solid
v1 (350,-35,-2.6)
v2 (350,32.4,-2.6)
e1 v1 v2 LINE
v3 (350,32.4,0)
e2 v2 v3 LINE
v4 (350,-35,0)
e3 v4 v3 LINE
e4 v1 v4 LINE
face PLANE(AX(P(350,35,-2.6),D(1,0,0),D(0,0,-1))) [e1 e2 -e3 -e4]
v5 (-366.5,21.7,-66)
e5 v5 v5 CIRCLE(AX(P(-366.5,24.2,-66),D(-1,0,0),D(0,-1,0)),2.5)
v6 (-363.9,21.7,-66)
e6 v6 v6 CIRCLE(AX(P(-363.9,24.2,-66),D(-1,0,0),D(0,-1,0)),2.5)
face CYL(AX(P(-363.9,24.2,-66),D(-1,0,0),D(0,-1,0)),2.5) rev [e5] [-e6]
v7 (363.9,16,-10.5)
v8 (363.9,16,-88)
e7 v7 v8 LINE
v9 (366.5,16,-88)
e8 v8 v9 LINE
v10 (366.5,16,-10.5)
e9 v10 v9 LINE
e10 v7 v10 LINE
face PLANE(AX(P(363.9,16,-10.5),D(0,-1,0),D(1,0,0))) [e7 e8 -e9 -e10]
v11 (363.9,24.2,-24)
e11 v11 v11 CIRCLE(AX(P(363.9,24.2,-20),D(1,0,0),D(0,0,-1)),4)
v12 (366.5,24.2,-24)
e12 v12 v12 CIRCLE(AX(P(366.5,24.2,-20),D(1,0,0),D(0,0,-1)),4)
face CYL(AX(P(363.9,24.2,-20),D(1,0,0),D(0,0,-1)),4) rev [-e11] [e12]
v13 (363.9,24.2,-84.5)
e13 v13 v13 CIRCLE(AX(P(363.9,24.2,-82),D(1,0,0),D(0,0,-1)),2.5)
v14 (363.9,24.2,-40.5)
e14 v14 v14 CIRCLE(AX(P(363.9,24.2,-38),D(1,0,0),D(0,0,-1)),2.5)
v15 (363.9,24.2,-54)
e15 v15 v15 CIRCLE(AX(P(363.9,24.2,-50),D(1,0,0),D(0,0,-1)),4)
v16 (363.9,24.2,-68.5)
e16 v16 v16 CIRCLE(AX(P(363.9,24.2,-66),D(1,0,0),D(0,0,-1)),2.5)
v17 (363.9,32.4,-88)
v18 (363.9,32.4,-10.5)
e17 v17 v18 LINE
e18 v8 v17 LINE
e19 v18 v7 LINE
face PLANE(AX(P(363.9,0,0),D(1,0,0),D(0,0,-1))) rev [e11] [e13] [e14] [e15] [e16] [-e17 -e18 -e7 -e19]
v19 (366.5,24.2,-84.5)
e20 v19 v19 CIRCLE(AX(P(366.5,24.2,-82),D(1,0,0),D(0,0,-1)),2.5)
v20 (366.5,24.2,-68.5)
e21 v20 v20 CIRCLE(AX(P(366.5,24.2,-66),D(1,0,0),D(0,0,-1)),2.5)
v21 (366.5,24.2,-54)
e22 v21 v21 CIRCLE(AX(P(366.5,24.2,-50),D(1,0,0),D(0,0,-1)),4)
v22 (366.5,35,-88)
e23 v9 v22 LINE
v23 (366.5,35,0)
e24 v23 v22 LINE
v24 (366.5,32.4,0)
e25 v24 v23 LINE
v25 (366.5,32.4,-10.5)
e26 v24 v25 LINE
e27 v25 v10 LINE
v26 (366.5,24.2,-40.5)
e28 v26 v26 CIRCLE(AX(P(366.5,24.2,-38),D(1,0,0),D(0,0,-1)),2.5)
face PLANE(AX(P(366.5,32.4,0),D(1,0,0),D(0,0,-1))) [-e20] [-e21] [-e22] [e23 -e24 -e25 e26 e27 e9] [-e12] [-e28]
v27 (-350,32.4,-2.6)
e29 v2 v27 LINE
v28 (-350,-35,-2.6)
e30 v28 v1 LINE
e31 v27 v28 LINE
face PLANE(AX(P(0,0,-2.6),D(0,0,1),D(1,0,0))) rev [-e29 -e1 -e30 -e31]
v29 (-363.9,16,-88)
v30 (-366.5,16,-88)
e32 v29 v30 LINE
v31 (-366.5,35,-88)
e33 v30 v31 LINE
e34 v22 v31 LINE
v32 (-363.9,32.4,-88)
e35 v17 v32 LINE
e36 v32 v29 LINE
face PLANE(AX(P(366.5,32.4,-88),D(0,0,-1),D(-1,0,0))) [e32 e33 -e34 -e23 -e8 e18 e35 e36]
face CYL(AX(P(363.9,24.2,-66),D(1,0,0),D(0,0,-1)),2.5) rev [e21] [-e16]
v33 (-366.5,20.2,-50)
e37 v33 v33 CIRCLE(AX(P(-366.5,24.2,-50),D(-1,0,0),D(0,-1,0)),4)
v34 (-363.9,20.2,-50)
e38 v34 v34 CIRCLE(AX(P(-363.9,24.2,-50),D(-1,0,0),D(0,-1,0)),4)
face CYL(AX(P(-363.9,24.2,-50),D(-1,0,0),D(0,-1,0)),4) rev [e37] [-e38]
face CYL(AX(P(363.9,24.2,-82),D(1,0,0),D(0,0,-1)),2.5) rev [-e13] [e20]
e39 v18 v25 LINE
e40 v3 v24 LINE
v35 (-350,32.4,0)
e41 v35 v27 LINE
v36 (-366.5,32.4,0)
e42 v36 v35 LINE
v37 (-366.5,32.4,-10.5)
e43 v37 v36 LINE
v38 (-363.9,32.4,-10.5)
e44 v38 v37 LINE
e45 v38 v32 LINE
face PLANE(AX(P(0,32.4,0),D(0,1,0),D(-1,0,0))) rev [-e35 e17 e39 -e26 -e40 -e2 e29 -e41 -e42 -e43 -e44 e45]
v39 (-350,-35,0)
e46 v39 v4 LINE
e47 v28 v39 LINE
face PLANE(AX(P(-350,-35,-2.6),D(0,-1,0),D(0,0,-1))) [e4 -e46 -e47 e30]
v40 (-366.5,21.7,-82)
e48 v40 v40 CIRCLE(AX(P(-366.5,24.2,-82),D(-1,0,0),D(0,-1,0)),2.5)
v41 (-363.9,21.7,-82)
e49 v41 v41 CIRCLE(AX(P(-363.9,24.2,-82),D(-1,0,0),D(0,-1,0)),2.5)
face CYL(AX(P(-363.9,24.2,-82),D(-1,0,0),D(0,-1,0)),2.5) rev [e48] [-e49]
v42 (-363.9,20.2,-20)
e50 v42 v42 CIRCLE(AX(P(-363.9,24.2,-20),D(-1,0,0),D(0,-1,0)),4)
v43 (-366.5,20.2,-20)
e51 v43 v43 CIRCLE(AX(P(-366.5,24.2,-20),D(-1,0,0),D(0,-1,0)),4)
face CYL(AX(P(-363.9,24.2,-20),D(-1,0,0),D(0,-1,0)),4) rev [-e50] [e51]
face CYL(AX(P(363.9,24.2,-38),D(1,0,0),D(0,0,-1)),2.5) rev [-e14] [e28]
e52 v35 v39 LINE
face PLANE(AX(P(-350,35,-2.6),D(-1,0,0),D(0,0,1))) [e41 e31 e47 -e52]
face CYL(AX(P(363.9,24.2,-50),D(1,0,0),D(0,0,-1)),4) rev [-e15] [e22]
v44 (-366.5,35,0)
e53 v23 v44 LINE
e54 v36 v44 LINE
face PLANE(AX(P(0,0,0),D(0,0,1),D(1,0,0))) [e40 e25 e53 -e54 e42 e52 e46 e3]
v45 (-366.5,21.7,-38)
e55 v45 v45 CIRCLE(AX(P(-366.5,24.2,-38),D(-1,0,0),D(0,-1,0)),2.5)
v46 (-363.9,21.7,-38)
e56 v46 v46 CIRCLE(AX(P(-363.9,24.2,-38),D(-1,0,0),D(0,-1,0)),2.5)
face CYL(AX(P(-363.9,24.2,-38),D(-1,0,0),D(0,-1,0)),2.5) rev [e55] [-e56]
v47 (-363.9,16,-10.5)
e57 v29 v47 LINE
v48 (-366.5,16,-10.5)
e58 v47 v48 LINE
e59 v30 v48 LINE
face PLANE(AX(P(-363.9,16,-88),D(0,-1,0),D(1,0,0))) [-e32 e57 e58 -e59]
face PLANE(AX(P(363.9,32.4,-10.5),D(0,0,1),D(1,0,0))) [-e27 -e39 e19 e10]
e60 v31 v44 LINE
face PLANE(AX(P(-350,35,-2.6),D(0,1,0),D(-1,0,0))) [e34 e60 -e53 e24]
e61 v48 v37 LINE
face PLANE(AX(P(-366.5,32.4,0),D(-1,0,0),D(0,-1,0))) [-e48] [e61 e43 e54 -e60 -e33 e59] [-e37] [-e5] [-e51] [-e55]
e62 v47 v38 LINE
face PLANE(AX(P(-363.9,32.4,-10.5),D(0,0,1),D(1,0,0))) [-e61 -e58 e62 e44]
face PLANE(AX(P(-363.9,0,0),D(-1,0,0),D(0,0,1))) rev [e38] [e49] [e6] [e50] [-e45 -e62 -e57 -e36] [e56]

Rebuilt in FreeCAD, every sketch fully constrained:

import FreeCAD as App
import Part
import Sketcher
Q = App.Units.Quantity

doc = App.newDocument("Part")
body = doc.addObject("PartDesign::Body", "Body")

# Sketch on XY plane
sketch1 = doc.addObject("Sketcher::SketchObject", "Sketch")
body.addObject(sketch1)
sketch1.AttachmentSupport = (doc.XY_Plane, [""])
sketch1.MapMode = "FlatFace"
sketch1.addGeometry([
    Part.LineSegment(App.Vector(-350, 35, 0), App.Vector(-350, -35, 0)),
    Part.LineSegment(App.Vector(-350, -35, 0), App.Vector(350, -35, 0)),
    Part.LineSegment(App.Vector(350, -35, 0), App.Vector(350, 35, 0)),
    Part.LineSegment(App.Vector(350, 35, 0), App.Vector(-350, 35, 0)),
], False)
sketch1.addConstraint([
    Sketcher.Constraint("Coincident", 0, 2, 1, 1),
    Sketcher.Constraint("Coincident", 1, 2, 2, 1),
    Sketcher.Constraint("Coincident", 2, 2, 3, 1),
    Sketcher.Constraint("Coincident", 3, 2, 0, 1),
    Sketcher.Constraint("Vertical", 0),
    Sketcher.Constraint("Horizontal", 1),
    Sketcher.Constraint("Vertical", 2),
    Sketcher.Constraint("Horizontal", 3),
    Sketcher.Constraint("Symmetric", 0, 2, 2, 2, -1, 1),
    Sketcher.Constraint("DistanceX", 1, 1, 1, 2, Q("700 mm")),
    Sketcher.Constraint("DistanceY", 0, 2, 0, 1, Q("70 mm")),
])
pad1 = doc.addObject("PartDesign::Pad", "Pad")
body.addObject(pad1)
pad1.Profile = sketch1
pad1.Length = 2.6
pad1.Reversed = True

# Sketch on XZ plane
sketch2 = doc.addObject("Sketcher::SketchObject", "Sketch001")
body.addObject(sketch2)
sketch2.AttachmentSupport = (doc.XZ_Plane, [""])
sketch2.MapMode = "FlatFace"
sketch2.AttachmentOffset = App.Placement(App.Vector(0, 0, -35), App.Rotation())
sketch2.addGeometry([
    Part.LineSegment(App.Vector(-366, -88, 0), App.Vector(-366, 0, 0)),
    Part.LineSegment(App.Vector(-366, 0, 0), App.Vector(366, 0, 0)),
    Part.LineSegment(App.Vector(366, 0, 0), App.Vector(366, -88, 0)),
    Part.LineSegment(App.Vector(366, -88, 0), App.Vector(-366, -88, 0)),
], False)
sketch2.addConstraint([
    Sketcher.Constraint("Coincident", 0, 2, 1, 1),
    Sketcher.Constraint("Coincident", 1, 2, 2, 1),
    Sketcher.Constraint("Coincident", 2, 2, 3, 1),
    Sketcher.Constraint("Coincident", 3, 2, 0, 1),
    Sketcher.Constraint("Vertical", 0),
    Sketcher.Constraint("Horizontal", 1),
    Sketcher.Constraint("Vertical", 2),
    Sketcher.Constraint("Horizontal", 3),
    Sketcher.Constraint("Symmetric", 0, 2, 1, 2, -1, 1),
    Sketcher.Constraint("DistanceX", 1, 1, 1, 2, Q("733 mm")),
    Sketcher.Constraint("DistanceY", 0, 1, 0, 2, Q("88 mm")),
])
pad2 = doc.addObject("PartDesign::Pad", "Pad001")
body.addObject(pad2)
pad2.Profile = sketch2
pad2.Length = 2.6

# Sketch on YZ plane
sketch3 = doc.addObject("Sketcher::SketchObject", "Sketch002")
body.addObject(sketch3)
sketch3.AttachmentSupport = (doc.YZ_Plane, [""])
sketch3.MapMode = "FlatFace"
sketch3.AttachmentOffset = App.Placement(App.Vector(0, 0, -366.5), App.Rotation())
sketch3.addGeometry([
    Part.LineSegment(App.Vector(32.4, -88, 0), App.Vector(16, -88, 0)),  # 0
    Part.LineSegment(App.Vector(16, -88, 0), App.Vector(16, -10.5, 0)),  # 1
    Part.LineSegment(App.Vector(16, -10.5, 0), App.Vector(32.4, -10.5, 0)),  # 2
    Part.LineSegment(App.Vector(32.4, -10.5, 0), App.Vector(32.4, -88, 0)),  # 3
    Part.Circle(App.Vector(24.2, -82, 0), App.Vector(0, 0, 1), 2.5),  # 4
    Part.Circle(App.Vector(24.2, -66, 0), App.Vector(0, 0, 1), 2.5),  # 5
    Part.Circle(App.Vector(24.2, -50, 0), App.Vector(0, 0, 1), 4),  # 6
    Part.Circle(App.Vector(24.2, -38, 0), App.Vector(0, 0, 1), 2.5),  # 7
    Part.Circle(App.Vector(24.2, -20, 0), App.Vector(0, 0, 1), 4),  # 8
], False)
sketch3.addConstraint([
    Sketcher.Constraint("Coincident", 0, 2, 1, 1),
    Sketcher.Constraint("Coincident", 1, 2, 2, 1),
    Sketcher.Constraint("Coincident", 2, 2, 3, 1),
    Sketcher.Constraint("Coincident", 3, 2, 0, 1),
    Sketcher.Constraint("Horizontal", 0),
    Sketcher.Constraint("Vertical", 1),
    Sketcher.Constraint("Horizontal", 2),
    Sketcher.Constraint("Vertical", 3),
    Sketcher.Constraint("Equal", 4, 5),
    Sketcher.Constraint("Equal", 5, 7),
    Sketcher.Constraint("Equal", 6, 8),
    Sketcher.Constraint("Vertical", 4, 3, 5, 3),
    Sketcher.Constraint("Vertical", 5, 3, 6, 3),
    Sketcher.Constraint("Vertical", 6, 3, 7, 3),
    Sketcher.Constraint("Vertical", 7, 3, 8, 3),
    Sketcher.Constraint("Diameter", 4, Q("5 mm")),
    Sketcher.Constraint("Diameter", 6, Q("8 mm")),
    Sketcher.Constraint("DistanceX", 0, 2, 0, 1, Q("16.4 mm")),
    Sketcher.Constraint("DistanceY", 1, 1, 1, 2, Q("77.5 mm")),
    Sketcher.Constraint("DistanceY", 4, 3, -1, 1, Q("82 mm")),
    Sketcher.Constraint("DistanceY", 5, 3, -1, 1, Q("66 mm")),
    Sketcher.Constraint("DistanceY", 6, 3, -1, 1, Q("50 mm")),
    Sketcher.Constraint("DistanceY", 7, 3, -1, 1, Q("38 mm")),
    Sketcher.Constraint("DistanceY", 8, 3, -1, 1, Q("20 mm")),
    Sketcher.Constraint("DistanceX", -1, 1, 0, 2, Q("16 mm")),
    Sketcher.Constraint("DistanceY", 0, 2, -1, 1, Q("88 mm")),
    Sketcher.Constraint("DistanceX", -1, 1, 4, 3, Q("24.2 mm")),
])
pad3 = doc.addObject("PartDesign::Pad", "Pad002")
body.addObject(pad3)
pad3.Profile = sketch3
pad3.Length = 2.6

# Sketch on YZ plane
sketch4 = doc.addObject("Sketcher::SketchObject", "Sketch003")
body.addObject(sketch4)
sketch4.AttachmentSupport = (doc.YZ_Plane, [""])
sketch4.MapMode = "FlatFace"
sketch4.AttachmentOffset = App.Placement(App.Vector(0, 0, 363.9), App.Rotation())
sketch4.addGeometry([
    Part.LineSegment(App.Vector(32.4, -10.5, 0), App.Vector(16, -10.5, 0)),  # 0
    Part.LineSegment(App.Vector(16, -10.5, 0), App.Vector(16, -88, 0)),  # 1
    Part.LineSegment(App.Vector(16, -88, 0), App.Vector(32.4, -88, 0)),  # 2
    Part.LineSegment(App.Vector(32.4, -88, 0), App.Vector(32.4, -10.5, 0)),  # 3
    Part.Circle(App.Vector(24.2, -20, 0), App.Vector(0, 0, 1), 4),  # 4
    Part.Circle(App.Vector(24.2, -38, 0), App.Vector(0, 0, 1), 2.5),  # 5
    Part.Circle(App.Vector(24.2, -50, 0), App.Vector(0, 0, 1), 4),  # 6
    Part.Circle(App.Vector(24.2, -66, 0), App.Vector(0, 0, 1), 2.5),  # 7
    Part.Circle(App.Vector(24.2, -82, 0), App.Vector(0, 0, 1), 2.5),  # 8
], False)
sketch4.addConstraint([
    Sketcher.Constraint("Coincident", 0, 2, 1, 1),
    Sketcher.Constraint("Coincident", 1, 2, 2, 1),
    Sketcher.Constraint("Coincident", 2, 2, 3, 1),
    Sketcher.Constraint("Coincident", 3, 2, 0, 1),
    Sketcher.Constraint("Horizontal", 0),
    Sketcher.Constraint("Vertical", 1),
    Sketcher.Constraint("Horizontal", 2),
    Sketcher.Constraint("Vertical", 3),
    Sketcher.Constraint("Equal", 4, 6),
    Sketcher.Constraint("Equal", 5, 7),
    Sketcher.Constraint("Equal", 7, 8),
    Sketcher.Constraint("Vertical", 4, 3, 5, 3),
    Sketcher.Constraint("Vertical", 5, 3, 6, 3),
    Sketcher.Constraint("Vertical", 6, 3, 7, 3),
    Sketcher.Constraint("Vertical", 7, 3, 8, 3),
    Sketcher.Constraint("Diameter", 4, Q("8 mm")),
    Sketcher.Constraint("Diameter", 5, Q("5 mm")),
    Sketcher.Constraint("DistanceX", 0, 2, 0, 1, Q("16.4 mm")),
    Sketcher.Constraint("DistanceY", 1, 2, 1, 1, Q("77.5 mm")),
    Sketcher.Constraint("DistanceY", 4, 3, -1, 1, Q("20 mm")),
    Sketcher.Constraint("DistanceY", 5, 3, -1, 1, Q("38 mm")),
    Sketcher.Constraint("DistanceY", 6, 3, -1, 1, Q("50 mm")),
    Sketcher.Constraint("DistanceY", 7, 3, -1, 1, Q("66 mm")),
    Sketcher.Constraint("DistanceY", 8, 3, -1, 1, Q("82 mm")),
    Sketcher.Constraint("DistanceX", -1, 1, 0, 2, Q("16 mm")),
    Sketcher.Constraint("DistanceY", 1, 2, -1, 1, Q("88 mm")),
    Sketcher.Constraint("DistanceX", -1, 1, 4, 3, Q("24.2 mm")),
])
pad4 = doc.addObject("PartDesign::Pad", "Pad003")
body.addObject(pad4)
pad4.Profile = sketch4
pad4.Length = 2.6

doc.recompute()
